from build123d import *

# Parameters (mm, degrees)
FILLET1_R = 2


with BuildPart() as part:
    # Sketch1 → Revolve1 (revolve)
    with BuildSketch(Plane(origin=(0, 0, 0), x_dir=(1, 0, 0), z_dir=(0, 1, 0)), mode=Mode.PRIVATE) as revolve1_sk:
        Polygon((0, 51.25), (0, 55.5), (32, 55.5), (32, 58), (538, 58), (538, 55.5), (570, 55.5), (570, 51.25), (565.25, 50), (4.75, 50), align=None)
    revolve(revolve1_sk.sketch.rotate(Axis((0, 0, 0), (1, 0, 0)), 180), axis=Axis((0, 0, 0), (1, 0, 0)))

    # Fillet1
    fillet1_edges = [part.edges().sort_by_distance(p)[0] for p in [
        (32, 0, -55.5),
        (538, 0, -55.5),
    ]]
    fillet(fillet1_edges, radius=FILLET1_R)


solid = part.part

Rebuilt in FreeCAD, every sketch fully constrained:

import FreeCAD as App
import Part
import Sketcher
from FreeCAD import Vector
Q = App.Units.Quantity


def edges_at(feature, points):
    """Names of the edges that pass closest to the given points."""
    edges = feature.Shape.Edges
    near = lambda p: min(range(len(edges)), key=lambda i: edges[i].distToShape(Part.Vertex(*p))[0])
    return sorted({f"Edge{near(p) + 1}" for p in points})


def add_polygon(sketch, points):
    """Adds a closed chain of lines whose ends are joined by coincident constraints."""
    first, n = sketch.GeometryCount, len(points)
    for a, b in zip(points, points[1:] + points[:1]):
        sketch.addGeometry(Part.LineSegment(App.Vector(*a, 0), App.Vector(*b, 0)), False)
    for i in range(n):
        sketch.addConstraint(Sketcher.Constraint("Coincident", first + i, 2, first + (i + 1) % n, 1))

doc = App.newDocument("Part")
body = doc.addObject("PartDesign::Body", "Body")

# Sketch on XZ plane
sketch1 = doc.addObject("Sketcher::SketchObject", "Sketch")
body.addObject(sketch1)
sketch1.AttachmentSupport = (doc.XZ_Plane, [""])
sketch1.MapMode = "FlatFace"
add_polygon(sketch1, [(0, -55.5), (0, -51.25), (4.75, -50), (565.25, -50), (570, -51.25), (570, -55.5), (538, -55.5), (538, -58), (32, -58), (32, -55.5)])  # lines 0-9
sketch1.addConstraint(Sketcher.Constraint("Vertical", 0))
sketch1.addConstraint(Sketcher.Constraint("Horizontal", 2))
sketch1.addConstraint(Sketcher.Constraint("Vertical", 4))
sketch1.addConstraint(Sketcher.Constraint("Horizontal", 5))
sketch1.addConstraint(Sketcher.Constraint("Vertical", 6))
sketch1.addConstraint(Sketcher.Constraint("Horizontal", 7))
sketch1.addConstraint(Sketcher.Constraint("Vertical", 8))
sketch1.addConstraint(Sketcher.Constraint("Horizontal", 9))
sketch1.addConstraint(Sketcher.Constraint("PointOnObject", 0, 2, -2))
sketch1.addConstraint(Sketcher.Constraint("Horizontal", 0, 2, 3, 2))
sketch1.addConstraint(Sketcher.Constraint("Horizontal", 5, 2, 8, 2))
sketch1.addConstraint(Sketcher.Constraint("Equal", 5, 9))
sketch1.addConstraint(Sketcher.Constraint("Equal", 1, 3))
sketch1.addConstraint(Sketcher.Constraint("DistanceX", 5, 2, 5, 1, Q("32 mm")))
sketch1.addConstraint(Sketcher.Constraint("DistanceX", 7, 2, 7, 1, Q("506 mm")))
sketch1.addConstraint(Sketcher.Constraint("DistanceX", 2, 1, 2, 2, Q("560.5 mm")))
sketch1.addConstraint(Sketcher.Constraint("DistanceY", 6, 2, 6, 1, Q("2.5 mm")))
sketch1.addConstraint(Sketcher.Constraint("DistanceY", 1, 2, -1, 1, Q("50 mm")))
sketch1.addConstraint(Sketcher.Constraint("DistanceY", 6, 2, -1, 1, Q("58 mm")))
sketch1.addConstraint(Sketcher.Constraint("DistanceY", 0, 1, 0, 2, Q("4.25 mm")))
revolution = doc.addObject("PartDesign::Revolution", "Revolution")
body.addObject(revolution)
revolution.Profile = sketch1
revolution.ReferenceAxis = (sketch1, ["H_Axis"])
revolution.Angle = 360
doc.recompute()

fillet = doc.addObject("PartDesign::Fillet", "Fillet")
body.addObject(fillet)
fillet.Base = (revolution, edges_at(revolution, [(32, 0, -55.5), (538, 0, -55.5)]))
fillet.Radius = 2

doc.recompute()
